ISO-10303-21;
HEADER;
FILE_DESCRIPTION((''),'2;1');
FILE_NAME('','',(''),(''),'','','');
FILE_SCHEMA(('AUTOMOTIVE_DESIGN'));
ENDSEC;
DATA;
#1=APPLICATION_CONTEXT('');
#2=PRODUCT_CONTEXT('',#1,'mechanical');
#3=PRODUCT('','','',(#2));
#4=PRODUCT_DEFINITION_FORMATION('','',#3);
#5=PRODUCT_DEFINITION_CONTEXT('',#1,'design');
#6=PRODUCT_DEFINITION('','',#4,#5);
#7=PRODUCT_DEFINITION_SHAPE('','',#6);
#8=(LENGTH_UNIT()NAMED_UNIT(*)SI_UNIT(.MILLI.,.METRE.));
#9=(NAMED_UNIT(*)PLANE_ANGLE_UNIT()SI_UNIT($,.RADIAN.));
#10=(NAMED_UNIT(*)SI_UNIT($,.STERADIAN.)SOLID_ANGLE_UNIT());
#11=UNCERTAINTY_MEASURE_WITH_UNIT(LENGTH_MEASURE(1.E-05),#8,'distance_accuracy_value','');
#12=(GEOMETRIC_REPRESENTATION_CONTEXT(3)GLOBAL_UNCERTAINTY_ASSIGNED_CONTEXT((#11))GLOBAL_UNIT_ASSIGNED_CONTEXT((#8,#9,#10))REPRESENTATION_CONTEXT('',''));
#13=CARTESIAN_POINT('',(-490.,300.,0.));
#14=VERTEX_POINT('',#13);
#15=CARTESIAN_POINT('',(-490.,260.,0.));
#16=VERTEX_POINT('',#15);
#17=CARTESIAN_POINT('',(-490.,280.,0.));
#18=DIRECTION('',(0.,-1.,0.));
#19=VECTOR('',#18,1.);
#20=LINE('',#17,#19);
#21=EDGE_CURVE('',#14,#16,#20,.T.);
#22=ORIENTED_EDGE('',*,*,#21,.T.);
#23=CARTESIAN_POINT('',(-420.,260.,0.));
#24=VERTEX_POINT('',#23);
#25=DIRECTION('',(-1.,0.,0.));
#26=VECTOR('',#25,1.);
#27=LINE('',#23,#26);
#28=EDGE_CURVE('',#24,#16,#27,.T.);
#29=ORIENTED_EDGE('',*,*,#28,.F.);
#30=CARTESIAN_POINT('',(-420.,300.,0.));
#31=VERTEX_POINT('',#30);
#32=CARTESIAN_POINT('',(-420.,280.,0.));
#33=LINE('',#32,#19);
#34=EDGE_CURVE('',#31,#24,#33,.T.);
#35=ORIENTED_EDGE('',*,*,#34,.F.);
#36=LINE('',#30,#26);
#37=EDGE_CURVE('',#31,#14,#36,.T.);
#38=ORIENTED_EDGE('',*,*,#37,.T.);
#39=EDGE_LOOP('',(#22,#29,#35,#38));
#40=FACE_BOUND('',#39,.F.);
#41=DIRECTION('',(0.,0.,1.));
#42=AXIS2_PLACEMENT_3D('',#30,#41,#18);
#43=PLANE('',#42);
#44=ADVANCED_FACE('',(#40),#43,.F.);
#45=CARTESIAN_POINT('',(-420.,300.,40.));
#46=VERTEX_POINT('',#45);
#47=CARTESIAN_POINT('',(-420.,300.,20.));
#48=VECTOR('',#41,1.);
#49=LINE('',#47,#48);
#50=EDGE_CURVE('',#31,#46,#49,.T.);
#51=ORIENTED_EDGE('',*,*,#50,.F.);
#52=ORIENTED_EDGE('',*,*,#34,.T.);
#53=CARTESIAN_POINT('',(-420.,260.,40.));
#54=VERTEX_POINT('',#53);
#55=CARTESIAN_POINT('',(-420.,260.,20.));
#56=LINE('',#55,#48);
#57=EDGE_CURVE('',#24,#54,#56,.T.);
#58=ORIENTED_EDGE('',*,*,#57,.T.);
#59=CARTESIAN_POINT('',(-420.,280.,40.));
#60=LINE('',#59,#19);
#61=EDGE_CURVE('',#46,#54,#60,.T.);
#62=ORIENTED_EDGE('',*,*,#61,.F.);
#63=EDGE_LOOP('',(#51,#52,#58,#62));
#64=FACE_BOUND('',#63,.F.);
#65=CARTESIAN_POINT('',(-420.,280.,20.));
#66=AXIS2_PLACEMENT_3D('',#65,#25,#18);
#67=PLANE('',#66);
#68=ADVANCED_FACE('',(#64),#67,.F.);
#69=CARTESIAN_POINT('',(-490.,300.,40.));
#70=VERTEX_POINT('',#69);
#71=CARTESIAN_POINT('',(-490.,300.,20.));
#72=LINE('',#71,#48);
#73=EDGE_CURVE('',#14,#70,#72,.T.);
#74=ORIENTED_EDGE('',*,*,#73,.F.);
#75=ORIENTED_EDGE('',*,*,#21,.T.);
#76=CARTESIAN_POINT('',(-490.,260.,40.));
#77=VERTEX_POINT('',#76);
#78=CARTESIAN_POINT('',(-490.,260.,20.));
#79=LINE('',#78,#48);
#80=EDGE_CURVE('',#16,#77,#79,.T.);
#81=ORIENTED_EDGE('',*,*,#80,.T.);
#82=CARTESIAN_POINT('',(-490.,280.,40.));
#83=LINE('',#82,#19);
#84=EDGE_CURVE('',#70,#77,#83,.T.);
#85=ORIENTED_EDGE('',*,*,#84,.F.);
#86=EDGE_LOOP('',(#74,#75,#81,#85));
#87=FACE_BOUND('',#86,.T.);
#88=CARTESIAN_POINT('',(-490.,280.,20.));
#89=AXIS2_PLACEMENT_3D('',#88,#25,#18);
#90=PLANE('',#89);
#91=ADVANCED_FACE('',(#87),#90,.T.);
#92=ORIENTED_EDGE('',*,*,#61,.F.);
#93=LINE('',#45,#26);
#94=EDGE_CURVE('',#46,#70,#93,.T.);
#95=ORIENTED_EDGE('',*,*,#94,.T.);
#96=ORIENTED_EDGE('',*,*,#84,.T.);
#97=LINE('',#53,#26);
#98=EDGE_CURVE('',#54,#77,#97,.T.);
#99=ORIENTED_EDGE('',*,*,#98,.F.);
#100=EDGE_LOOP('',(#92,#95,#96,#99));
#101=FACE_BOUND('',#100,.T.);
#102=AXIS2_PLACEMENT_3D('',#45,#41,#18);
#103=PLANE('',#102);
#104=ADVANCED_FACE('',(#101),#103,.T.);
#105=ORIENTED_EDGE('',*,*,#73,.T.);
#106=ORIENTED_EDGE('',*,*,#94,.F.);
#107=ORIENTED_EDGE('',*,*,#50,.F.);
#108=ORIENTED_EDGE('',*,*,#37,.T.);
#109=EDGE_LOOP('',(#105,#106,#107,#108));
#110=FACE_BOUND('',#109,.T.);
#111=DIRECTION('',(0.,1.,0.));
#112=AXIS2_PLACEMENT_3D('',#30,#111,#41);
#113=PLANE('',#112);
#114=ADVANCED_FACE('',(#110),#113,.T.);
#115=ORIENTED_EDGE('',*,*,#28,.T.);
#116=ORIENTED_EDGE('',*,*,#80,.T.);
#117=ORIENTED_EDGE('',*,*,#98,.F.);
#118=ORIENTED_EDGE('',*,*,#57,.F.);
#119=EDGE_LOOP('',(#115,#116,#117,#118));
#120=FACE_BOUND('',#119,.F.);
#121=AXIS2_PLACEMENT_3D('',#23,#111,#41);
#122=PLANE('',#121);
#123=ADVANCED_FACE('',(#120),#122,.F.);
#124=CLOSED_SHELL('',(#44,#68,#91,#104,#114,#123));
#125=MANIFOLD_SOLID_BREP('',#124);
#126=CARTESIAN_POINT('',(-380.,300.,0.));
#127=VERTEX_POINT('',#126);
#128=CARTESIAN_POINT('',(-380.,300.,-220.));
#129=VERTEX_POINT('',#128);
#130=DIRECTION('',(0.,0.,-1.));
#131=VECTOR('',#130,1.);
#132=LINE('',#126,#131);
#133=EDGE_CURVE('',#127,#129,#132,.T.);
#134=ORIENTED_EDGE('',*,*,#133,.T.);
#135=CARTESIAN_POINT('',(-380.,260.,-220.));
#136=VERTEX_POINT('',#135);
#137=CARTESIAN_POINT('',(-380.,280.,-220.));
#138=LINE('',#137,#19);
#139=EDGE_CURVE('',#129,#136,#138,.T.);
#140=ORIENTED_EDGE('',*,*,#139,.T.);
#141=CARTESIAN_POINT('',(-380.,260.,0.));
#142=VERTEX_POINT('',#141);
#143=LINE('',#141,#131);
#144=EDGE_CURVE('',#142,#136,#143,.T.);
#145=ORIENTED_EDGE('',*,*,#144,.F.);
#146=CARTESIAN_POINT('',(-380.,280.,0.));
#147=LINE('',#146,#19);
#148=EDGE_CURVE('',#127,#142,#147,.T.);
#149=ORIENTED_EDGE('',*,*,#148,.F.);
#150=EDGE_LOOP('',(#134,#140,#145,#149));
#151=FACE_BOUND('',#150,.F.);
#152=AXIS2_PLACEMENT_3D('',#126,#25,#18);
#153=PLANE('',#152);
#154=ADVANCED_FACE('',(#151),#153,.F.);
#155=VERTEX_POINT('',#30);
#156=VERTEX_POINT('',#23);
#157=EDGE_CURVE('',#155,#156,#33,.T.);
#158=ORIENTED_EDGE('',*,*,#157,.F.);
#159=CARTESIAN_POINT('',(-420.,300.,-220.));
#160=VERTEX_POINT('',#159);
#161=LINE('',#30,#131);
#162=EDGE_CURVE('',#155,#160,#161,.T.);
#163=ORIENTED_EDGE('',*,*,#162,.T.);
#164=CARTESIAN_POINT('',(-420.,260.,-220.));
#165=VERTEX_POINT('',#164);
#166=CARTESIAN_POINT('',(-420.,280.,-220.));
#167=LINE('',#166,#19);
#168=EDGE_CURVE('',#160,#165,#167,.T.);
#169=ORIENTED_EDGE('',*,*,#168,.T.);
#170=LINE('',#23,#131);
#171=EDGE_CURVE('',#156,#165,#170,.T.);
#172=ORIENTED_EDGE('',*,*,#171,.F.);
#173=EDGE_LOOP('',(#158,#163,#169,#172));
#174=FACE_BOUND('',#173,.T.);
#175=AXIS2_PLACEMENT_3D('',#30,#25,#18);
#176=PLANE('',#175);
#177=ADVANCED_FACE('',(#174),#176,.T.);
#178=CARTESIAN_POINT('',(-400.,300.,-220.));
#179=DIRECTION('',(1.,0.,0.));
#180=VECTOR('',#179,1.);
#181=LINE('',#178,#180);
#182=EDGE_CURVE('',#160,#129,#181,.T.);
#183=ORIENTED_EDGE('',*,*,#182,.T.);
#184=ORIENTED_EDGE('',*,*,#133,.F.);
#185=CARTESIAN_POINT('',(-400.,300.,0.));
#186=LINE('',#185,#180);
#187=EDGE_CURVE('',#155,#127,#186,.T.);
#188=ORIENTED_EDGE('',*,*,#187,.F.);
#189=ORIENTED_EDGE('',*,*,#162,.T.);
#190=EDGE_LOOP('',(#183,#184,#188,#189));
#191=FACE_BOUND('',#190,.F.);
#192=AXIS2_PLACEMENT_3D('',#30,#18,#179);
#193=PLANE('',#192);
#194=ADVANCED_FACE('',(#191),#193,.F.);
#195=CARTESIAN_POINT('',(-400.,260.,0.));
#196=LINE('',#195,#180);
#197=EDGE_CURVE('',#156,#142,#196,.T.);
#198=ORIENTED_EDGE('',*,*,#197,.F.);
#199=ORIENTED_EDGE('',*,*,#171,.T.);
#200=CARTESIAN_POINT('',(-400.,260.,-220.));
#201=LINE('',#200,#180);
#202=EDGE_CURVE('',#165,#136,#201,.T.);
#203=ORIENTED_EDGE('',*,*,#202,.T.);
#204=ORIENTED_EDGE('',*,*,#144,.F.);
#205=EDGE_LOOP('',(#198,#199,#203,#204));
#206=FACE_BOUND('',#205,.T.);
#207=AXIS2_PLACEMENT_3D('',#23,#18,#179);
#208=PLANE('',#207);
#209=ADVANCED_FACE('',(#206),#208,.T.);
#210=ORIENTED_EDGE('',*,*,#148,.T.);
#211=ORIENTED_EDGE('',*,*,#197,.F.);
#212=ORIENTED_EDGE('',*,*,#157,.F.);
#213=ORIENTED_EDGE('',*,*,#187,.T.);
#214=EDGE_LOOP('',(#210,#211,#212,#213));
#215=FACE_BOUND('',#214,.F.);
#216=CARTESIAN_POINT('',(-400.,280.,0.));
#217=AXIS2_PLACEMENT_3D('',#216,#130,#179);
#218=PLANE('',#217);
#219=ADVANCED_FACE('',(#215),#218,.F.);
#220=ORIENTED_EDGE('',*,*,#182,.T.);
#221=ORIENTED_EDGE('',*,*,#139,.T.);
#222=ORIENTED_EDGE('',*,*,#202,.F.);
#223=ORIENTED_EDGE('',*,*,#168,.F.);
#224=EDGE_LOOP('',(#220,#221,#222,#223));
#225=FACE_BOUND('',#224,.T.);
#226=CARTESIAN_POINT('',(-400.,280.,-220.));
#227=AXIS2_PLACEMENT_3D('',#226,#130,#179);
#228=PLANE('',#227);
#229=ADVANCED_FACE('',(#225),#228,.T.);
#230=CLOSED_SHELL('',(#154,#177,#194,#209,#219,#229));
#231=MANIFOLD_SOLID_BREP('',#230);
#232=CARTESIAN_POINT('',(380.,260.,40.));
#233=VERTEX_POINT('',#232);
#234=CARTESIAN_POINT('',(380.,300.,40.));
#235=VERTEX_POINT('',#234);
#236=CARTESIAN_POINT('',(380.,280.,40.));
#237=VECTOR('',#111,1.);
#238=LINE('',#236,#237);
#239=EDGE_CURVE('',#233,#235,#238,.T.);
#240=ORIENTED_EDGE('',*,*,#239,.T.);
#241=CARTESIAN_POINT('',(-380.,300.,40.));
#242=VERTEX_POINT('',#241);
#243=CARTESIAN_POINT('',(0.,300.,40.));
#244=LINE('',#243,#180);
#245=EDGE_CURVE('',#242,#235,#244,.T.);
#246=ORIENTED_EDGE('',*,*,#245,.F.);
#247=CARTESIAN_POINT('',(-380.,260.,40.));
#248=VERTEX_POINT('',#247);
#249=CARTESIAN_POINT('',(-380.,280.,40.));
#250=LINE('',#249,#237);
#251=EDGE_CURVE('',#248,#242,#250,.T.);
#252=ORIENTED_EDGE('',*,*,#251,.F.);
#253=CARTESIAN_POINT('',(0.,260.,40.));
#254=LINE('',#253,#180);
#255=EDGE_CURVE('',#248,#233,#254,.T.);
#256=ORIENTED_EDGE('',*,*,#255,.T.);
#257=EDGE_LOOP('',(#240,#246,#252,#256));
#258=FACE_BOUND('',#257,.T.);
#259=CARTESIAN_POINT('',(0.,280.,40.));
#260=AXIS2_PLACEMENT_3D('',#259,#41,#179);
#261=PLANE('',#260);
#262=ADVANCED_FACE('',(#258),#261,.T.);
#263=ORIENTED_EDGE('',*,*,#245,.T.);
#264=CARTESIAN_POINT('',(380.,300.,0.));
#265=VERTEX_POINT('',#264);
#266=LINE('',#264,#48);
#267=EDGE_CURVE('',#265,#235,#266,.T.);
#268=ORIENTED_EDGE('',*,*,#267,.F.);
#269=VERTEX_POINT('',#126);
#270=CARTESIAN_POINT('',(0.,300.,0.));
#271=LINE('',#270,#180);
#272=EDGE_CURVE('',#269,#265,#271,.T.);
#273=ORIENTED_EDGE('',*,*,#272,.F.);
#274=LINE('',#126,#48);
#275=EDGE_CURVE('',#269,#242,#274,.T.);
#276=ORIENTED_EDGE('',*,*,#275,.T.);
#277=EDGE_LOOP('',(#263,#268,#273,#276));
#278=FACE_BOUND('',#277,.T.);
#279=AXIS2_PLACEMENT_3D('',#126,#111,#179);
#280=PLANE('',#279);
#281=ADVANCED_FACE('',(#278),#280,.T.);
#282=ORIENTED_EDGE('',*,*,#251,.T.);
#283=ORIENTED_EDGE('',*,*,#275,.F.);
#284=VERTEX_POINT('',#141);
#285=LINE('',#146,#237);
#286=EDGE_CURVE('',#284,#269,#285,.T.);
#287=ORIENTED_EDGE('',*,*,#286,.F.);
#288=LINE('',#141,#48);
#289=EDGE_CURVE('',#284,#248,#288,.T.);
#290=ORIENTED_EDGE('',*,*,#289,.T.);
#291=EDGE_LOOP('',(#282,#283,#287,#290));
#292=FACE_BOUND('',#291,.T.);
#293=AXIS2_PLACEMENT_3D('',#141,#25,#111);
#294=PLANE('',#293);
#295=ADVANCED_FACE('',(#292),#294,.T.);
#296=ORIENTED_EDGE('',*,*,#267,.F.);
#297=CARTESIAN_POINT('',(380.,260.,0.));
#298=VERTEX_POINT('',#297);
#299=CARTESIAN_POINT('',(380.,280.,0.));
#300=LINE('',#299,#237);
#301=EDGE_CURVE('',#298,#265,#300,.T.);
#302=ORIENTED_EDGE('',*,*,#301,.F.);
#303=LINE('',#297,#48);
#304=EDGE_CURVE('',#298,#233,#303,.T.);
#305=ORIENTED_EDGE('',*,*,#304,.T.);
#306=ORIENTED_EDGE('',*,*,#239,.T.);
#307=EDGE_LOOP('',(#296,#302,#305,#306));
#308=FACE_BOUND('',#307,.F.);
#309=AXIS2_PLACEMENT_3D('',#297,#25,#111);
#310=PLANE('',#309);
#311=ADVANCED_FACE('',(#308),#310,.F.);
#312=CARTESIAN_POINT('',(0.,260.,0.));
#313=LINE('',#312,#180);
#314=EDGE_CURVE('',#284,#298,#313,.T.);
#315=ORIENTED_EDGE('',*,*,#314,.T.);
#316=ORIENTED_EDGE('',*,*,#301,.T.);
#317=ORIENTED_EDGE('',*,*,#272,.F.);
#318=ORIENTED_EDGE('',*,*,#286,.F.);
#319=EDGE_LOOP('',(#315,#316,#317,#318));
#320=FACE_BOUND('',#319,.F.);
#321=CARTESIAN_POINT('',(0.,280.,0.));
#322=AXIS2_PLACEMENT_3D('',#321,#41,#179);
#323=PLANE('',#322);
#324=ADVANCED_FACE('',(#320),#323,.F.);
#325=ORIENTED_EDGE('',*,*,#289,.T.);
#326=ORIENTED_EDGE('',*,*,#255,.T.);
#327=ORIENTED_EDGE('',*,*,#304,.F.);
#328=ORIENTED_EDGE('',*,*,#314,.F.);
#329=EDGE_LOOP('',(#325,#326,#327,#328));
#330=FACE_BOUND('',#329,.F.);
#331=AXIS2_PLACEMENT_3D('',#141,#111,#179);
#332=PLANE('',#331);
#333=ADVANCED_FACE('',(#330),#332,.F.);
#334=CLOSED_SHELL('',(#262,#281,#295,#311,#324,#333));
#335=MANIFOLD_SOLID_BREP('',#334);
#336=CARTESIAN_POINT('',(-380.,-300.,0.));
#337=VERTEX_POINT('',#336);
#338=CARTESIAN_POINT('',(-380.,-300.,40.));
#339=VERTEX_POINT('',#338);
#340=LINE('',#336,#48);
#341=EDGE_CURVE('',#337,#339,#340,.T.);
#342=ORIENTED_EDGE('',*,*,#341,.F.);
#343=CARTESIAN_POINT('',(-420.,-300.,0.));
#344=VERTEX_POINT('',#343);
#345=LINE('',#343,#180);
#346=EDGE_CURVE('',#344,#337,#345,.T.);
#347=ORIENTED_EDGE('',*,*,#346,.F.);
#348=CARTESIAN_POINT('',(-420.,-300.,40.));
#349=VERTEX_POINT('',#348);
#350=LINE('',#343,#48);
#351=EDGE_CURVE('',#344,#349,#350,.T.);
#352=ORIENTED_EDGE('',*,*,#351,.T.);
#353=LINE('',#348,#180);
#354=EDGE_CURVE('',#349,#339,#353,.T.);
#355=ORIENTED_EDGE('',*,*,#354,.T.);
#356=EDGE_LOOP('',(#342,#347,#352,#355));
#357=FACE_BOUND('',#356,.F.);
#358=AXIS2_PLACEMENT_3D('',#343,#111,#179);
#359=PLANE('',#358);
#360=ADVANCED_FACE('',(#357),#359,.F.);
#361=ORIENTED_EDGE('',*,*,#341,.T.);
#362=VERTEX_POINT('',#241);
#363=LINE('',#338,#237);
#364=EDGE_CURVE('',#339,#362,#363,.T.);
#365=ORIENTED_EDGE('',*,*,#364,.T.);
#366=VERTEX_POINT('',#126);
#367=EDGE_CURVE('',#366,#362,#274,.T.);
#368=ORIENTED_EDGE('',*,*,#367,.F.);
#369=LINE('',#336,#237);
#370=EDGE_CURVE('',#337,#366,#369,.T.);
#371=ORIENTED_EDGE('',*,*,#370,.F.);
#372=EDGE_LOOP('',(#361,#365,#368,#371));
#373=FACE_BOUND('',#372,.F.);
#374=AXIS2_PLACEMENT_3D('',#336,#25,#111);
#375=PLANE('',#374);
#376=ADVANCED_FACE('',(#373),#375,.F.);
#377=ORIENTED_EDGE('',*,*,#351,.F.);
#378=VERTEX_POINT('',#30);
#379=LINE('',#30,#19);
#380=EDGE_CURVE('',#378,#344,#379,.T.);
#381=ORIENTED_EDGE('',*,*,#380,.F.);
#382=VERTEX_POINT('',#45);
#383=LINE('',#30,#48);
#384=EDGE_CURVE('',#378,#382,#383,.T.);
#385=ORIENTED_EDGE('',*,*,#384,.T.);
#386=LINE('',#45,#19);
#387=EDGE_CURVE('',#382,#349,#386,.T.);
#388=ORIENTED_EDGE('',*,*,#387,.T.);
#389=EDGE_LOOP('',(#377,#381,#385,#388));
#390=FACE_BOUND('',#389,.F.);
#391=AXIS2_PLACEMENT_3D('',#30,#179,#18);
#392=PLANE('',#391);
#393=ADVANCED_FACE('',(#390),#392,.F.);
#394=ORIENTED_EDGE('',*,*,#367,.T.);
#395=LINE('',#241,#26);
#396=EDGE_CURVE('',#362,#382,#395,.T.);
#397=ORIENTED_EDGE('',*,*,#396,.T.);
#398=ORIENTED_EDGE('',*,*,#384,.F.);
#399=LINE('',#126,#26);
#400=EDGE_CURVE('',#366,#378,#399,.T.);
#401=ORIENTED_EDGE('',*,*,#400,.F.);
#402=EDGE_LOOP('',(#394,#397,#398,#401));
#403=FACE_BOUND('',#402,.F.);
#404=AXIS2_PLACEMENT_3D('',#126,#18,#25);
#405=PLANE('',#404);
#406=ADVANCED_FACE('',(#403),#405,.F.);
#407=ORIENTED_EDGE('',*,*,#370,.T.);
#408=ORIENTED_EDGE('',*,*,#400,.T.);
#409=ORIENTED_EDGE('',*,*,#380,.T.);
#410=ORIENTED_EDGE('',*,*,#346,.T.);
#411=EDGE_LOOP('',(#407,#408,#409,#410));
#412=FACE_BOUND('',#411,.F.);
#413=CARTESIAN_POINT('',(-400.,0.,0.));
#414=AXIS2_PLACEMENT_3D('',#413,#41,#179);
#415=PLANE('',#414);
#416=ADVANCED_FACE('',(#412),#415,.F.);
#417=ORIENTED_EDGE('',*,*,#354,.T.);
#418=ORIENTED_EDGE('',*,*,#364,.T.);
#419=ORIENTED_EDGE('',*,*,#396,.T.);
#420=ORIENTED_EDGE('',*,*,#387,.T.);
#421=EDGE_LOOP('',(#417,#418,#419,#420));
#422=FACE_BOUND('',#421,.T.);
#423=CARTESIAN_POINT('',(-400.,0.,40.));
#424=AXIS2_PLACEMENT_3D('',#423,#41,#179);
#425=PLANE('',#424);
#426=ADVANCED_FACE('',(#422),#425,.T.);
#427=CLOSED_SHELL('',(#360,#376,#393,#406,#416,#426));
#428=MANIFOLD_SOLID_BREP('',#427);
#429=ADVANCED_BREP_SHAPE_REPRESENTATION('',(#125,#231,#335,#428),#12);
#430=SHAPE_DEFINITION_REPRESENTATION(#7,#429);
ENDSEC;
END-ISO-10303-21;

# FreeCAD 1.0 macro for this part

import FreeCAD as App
import Part
import Sketcher
Q = App.Units.Quantity


def add_polygon(sketch, points):
    """Adds a closed chain of lines whose ends are joined by coincident constraints."""
    first, n = sketch.GeometryCount, len(points)
    for a, b in zip(points, points[1:] + points[:1]):
        sketch.addGeometry(Part.LineSegment(App.Vector(*a, 0), App.Vector(*b, 0)), False)
    for i in range(n):
        sketch.addConstraint(Sketcher.Constraint("Coincident", first + i, 2, first + (i + 1) % n, 1))

doc = App.newDocument("Part")
params = doc.addObject("Spreadsheet::Sheet", "Params")
for row, (alias, value) in enumerate([
    ("sketch1_width", "40 mm"),
    ("sketch1_height", "600 mm"),
    ("pad1_length", "40 mm"),
    ("sketch2_width", "760 mm"),
    ("sketch2_height", "40 mm"),
    ("pad2_length", "40 mm"),
    ("sketch3_width", "40 mm"),
    ("pad3_length", "220 mm"),
    ("sketch4_width", "40 mm"),
    ("pad4_length", "70 mm"),
], start=1):
    params.set(f"A{row}", alias)
    params.set(f"B{row}", "=" + value)
    params.setAlias(f"B{row}", alias)

body = doc.addObject("PartDesign::Body", "Body")

# Sketch on XY plane
sketch1 = doc.addObject("Sketcher::SketchObject", "Sketch")
body.addObject(sketch1)
sketch1.AttachmentSupport = (doc.XY_Plane, [""])
sketch1.MapMode = "FlatFace"
add_polygon(sketch1, [(-380, 300), (-420, 300), (-420, -300), (-380, -300)])  # lines 0-3
sketch1.addConstraint([
    Sketcher.Constraint("Horizontal", 0),
    Sketcher.Constraint("Vertical", 1),
    Sketcher.Constraint("Horizontal", 2),
    Sketcher.Constraint("Vertical", 3),
    Sketcher.Constraint("DistanceX", 0, 2, 0, 1, Q("40 mm")),
    Sketcher.Constraint("DistanceY", 1, 2, 1, 1, Q("600 mm")),
    Sketcher.Constraint("DistanceX", 0, 2, -1, 1, Q("420 mm")),
    Sketcher.Constraint("DistanceY", -1, 1, 0, 2, Q("300 mm")),
])
sketch1.setExpression("Constraints[8]", "Params.sketch1_width")
sketch1.setExpression("Constraints[9]", "Params.sketch1_height")
pad1 = doc.addObject("PartDesign::Pad", "Pad")
body.addObject(pad1)
pad1.Profile = sketch1
pad1.setExpression("Length", "Params.pad1_length")
body2 = doc.addObject("PartDesign::Body", "Body001")

# Sketch on XY plane
sketch2 = doc.addObject("Sketcher::SketchObject", "Sketch001")
body2.addObject(sketch2)
sketch2.AttachmentSupport = (doc.getObject("XY_Plane001"), [""])
sketch2.MapMode = "FlatFace"
add_polygon(sketch2, [(-380, 300), (-380, 260), (380, 260), (380, 300)])  # lines 0-3
sketch2.addConstraint([
    Sketcher.Constraint("Vertical", 0),
    Sketcher.Constraint("Horizontal", 1),
    Sketcher.Constraint("Vertical", 2),
    Sketcher.Constraint("Horizontal", 3),
    Sketcher.Constraint("DistanceX", 1, 1, 1, 2, Q("760 mm")),
    Sketcher.Constraint("DistanceY", 0, 2, 0, 1, Q("40 mm")),
    Sketcher.Constraint("DistanceX", 0, 2, -1, 1, Q("380 mm")),
    Sketcher.Constraint("DistanceY", -1, 1, 0, 2, Q("260 mm")),
])
sketch2.setExpression("Constraints[8]", "Params.sketch2_width")
sketch2.setExpression("Constraints[9]", "Params.sketch2_height")
pad2 = doc.addObject("PartDesign::Pad", "Pad001")
body2.addObject(pad2)
pad2.Profile = sketch2
pad2.setExpression("Length", "Params.pad2_length")
body3 = doc.addObject("PartDesign::Body", "Body002")

# Sketch on XY plane
sketch3 = doc.addObject("Sketcher::SketchObject", "Sketch002")
body3.addObject(sketch3)
sketch3.AttachmentSupport = (doc.getObject("XY_Plane002"), [""])
sketch3.MapMode = "FlatFace"
add_polygon(sketch3, [(-420, 260), (-420, 300), (-380, 300), (-380, 260)])  # lines 0-3
sketch3.addConstraint([
    Sketcher.Constraint("Vertical", 0),
    Sketcher.Constraint("Horizontal", 1),
    Sketcher.Constraint("Vertical", 2),
    Sketcher.Constraint("Horizontal", 3),
    Sketcher.Constraint("Equal", 3, 0),
    Sketcher.Constraint("DistanceX", 1, 1, 1, 2, Q("40 mm")),
    Sketcher.Constraint("DistanceX", 0, 2, -1, 1, Q("420 mm")),
    Sketcher.Constraint("DistanceY", -1, 1, 0, 2, Q("300 mm")),
])
sketch3.setExpression("Constraints[9]", "Params.sketch3_width")
pad3 = doc.addObject("PartDesign::Pad", "Pad002")
body3.addObject(pad3)
pad3.Profile = sketch3
pad3.setExpression("Length", "Params.pad3_length")
pad3.Reversed = True
body4 = doc.addObject("PartDesign::Body", "Body003")

# Sketch on YZ plane
sketch4 = doc.addObject("Sketcher::SketchObject", "Sketch003")
body4.addObject(sketch4)
sketch4.AttachmentSupport = (doc.getObject("YZ_Plane003"), [""])
sketch4.MapMode = "FlatFace"
sketch4.AttachmentOffset = App.Placement(App.Vector(0, 0, -420), App.Rotation())
add_polygon(sketch4, [(300, 40), (300, 0), (260, 0), (260, 40)])  # lines 0-3
sketch4.addConstraint([
    Sketcher.Constraint("Vertical", 0),
    Sketcher.Constraint("Horizontal", 1),
    Sketcher.Constraint("Vertical", 2),
    Sketcher.Constraint("Horizontal", 3),
    Sketcher.Constraint("PointOnObject", 0, 2, -1),
    Sketcher.Constraint("Equal", 3, 0),
    Sketcher.Constraint("DistanceX", 1, 2, 1, 1, Q("40 mm")),
    Sketcher.Constraint("DistanceX", -1, 1, 0, 2, Q("300 mm")),
])
sketch4.setExpression("Constraints[10]", "Params.sketch4_width")
pad4 = doc.addObject("PartDesign::Pad", "Pad003")
body4.addObject(pad4)
pad4.Profile = sketch4
pad4.setExpression("Length", "Params.pad4_length")
pad4.Reversed = True

doc.recompute()
